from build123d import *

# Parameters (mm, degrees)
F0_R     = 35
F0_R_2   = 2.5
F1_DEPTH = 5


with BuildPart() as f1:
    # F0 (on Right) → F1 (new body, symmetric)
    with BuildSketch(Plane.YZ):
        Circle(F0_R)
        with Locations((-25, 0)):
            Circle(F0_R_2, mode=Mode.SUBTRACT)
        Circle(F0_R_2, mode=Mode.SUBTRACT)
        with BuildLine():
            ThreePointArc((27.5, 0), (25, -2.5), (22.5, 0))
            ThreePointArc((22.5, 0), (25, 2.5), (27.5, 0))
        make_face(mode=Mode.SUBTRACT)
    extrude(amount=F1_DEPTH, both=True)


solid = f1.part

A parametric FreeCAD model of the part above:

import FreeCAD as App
import Part
import Sketcher
from FreeCAD import Vector
Q = App.Units.Quantity

doc = App.newDocument("Part")
body = doc.addObject("PartDesign::Body", "Body")

sketch1 = body.newObject("Sketcher::SketchObject", "Sketch")
sketch1.AttachmentSupport = (doc.getObject("YZ_Plane"), [""])
sketch1.MapMode = "FlatFace"
sketch1.addGeometry([
    Part.Circle(Vector(0, 0, 0), Vector(0, 0, 1), 35),
    Part.Circle(Vector(-25, 0, 0), Vector(0, 0, 1), 2.5),
    Part.Circle(Vector(0, 0, 0), Vector(0, 0, 1), 2.5),
    Part.Circle(Vector(25, 0, 0), Vector(0, 0, 1), 2.5),
], False)
sketch1.addConstraint([
    Sketcher.Constraint("Coincident", 0, 3, -1, 1),
    Sketcher.Constraint("Coincident", 2, 3, -1, 1),
    Sketcher.Constraint("Equal", 1, 2),
    Sketcher.Constraint("Equal", 2, 3),
    Sketcher.Constraint("Symmetric", 1, 3, 3, 3, -1, 1),
    Sketcher.Constraint("PointOnObject", 1, 3, -1),
    Sketcher.Constraint("Diameter", 0, Q("70 mm")),
    Sketcher.Constraint("Diameter", 1, Q("5 mm")),
    Sketcher.Constraint("DistanceX", 1, 3, -1, 1, Q("25 mm")),
])
pad1 = body.newObject("PartDesign::Pad", "Pad")
pad1.Profile = sketch1
pad1.Length = 10
pad1.Midplane = True

doc.recompute()
